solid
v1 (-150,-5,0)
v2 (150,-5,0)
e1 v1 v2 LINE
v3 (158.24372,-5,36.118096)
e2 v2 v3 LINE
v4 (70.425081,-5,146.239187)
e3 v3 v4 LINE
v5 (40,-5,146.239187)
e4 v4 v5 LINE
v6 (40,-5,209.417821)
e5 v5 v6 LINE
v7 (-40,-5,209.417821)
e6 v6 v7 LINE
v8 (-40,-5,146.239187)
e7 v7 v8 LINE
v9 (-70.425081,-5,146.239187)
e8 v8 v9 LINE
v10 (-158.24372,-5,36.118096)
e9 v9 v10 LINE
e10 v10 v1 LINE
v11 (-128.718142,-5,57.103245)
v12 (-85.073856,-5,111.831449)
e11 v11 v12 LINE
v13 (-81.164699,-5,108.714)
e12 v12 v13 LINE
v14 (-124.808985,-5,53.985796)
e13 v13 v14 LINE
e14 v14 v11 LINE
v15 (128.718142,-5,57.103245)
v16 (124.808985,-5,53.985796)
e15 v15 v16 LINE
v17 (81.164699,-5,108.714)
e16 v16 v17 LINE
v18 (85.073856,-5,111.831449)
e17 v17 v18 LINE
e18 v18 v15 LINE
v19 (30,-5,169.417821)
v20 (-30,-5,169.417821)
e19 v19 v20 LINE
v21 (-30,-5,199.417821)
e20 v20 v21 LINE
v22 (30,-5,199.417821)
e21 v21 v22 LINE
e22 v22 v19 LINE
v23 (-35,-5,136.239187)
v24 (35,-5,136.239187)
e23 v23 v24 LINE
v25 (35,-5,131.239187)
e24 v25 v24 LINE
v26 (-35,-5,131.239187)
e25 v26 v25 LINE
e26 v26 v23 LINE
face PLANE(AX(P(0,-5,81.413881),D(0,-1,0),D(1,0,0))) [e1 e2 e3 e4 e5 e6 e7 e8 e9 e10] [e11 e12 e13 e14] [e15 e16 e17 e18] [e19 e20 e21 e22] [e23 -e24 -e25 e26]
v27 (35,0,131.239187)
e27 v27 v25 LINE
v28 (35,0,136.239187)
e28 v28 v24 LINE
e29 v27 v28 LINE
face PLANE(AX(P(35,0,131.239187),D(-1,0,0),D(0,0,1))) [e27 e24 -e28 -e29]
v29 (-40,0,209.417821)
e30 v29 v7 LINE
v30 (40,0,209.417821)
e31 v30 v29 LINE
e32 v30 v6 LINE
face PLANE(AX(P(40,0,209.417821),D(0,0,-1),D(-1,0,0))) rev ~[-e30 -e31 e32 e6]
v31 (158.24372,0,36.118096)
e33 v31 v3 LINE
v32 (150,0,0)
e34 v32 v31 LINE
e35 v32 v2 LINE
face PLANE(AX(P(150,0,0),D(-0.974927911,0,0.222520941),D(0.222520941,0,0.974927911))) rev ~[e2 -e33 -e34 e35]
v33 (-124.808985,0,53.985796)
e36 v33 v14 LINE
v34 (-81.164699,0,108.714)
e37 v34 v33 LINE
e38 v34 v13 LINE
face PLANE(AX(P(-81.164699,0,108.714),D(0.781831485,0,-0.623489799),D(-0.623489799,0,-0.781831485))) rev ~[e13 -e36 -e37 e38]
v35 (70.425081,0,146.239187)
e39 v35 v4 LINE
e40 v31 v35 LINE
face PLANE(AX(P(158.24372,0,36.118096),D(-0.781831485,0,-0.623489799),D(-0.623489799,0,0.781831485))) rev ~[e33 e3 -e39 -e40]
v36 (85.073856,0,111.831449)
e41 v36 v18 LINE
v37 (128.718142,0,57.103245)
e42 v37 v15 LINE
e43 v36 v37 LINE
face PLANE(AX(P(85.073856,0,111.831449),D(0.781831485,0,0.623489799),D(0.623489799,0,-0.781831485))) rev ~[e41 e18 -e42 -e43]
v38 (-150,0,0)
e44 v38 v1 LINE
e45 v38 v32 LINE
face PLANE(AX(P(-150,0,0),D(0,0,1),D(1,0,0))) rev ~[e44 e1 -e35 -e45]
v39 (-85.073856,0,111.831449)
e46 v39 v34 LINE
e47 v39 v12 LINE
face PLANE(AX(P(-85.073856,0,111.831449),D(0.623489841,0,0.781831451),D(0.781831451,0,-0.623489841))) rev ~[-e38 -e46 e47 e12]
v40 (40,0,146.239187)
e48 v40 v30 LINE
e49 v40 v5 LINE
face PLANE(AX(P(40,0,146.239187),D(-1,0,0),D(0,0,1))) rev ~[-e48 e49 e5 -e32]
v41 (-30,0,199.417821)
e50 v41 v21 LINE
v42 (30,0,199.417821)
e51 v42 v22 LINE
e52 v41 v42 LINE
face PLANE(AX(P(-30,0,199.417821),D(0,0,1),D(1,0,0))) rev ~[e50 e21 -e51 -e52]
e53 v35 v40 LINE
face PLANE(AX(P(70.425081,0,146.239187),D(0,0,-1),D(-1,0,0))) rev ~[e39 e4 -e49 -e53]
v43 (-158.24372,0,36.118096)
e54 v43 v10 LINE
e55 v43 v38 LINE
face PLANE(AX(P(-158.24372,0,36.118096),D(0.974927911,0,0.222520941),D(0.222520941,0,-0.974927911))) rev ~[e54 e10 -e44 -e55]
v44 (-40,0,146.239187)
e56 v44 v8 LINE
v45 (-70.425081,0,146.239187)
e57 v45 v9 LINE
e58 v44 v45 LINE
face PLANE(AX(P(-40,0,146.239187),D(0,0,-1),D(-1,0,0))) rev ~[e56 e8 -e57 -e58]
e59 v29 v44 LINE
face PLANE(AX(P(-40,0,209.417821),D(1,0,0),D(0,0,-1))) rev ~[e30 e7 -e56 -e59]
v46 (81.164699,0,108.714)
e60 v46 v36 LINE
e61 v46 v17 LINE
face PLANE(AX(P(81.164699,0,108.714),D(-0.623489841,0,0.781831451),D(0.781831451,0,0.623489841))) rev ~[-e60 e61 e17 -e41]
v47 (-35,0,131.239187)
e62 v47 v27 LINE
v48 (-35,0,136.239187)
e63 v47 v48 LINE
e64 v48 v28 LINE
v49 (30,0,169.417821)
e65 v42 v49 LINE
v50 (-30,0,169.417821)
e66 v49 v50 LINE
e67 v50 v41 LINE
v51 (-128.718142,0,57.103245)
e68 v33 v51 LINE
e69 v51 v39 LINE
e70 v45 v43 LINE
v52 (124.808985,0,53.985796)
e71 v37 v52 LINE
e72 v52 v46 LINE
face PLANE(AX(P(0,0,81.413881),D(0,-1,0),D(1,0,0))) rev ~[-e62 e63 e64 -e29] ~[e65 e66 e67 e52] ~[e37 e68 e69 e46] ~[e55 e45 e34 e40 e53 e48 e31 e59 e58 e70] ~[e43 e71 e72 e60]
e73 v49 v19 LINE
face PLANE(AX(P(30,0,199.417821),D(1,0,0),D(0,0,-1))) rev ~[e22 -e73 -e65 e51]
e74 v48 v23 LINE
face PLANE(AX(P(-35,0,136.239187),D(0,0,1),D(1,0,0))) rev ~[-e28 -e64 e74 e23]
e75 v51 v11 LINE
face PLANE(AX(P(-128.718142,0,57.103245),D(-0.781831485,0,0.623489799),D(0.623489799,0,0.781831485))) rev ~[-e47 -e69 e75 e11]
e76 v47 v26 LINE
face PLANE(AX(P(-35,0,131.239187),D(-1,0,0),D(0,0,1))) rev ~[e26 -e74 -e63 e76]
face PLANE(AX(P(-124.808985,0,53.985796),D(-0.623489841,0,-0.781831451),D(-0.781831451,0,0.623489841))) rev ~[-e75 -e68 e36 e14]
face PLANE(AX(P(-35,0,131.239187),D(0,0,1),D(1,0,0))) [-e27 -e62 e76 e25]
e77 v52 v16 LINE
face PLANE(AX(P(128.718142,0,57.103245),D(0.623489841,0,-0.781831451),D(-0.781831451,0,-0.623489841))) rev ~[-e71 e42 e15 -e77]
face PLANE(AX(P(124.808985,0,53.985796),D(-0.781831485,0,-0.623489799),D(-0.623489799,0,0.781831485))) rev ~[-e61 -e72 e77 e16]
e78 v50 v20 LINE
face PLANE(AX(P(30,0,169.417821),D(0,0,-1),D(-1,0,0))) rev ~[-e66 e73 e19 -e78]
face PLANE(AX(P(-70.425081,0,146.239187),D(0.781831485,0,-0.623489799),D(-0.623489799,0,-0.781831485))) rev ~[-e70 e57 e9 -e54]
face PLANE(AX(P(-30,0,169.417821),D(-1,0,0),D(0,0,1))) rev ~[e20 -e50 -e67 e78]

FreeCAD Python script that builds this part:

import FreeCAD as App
import Part
import Sketcher
from FreeCAD import Vector
Q = App.Units.Quantity


def add_polygon(sketch, points):
    """Adds a closed chain of lines whose ends are joined by coincident constraints."""
    first, n = sketch.GeometryCount, len(points)
    for a, b in zip(points, points[1:] + points[:1]):
        sketch.addGeometry(Part.LineSegment(App.Vector(*a, 0), App.Vector(*b, 0)), False)
    for i in range(n):
        sketch.addConstraint(Sketcher.Constraint("Coincident", first + i, 2, first + (i + 1) % n, 1))

doc = App.newDocument("Part")
body = doc.addObject("PartDesign::Body", "Body")

# Sketch on XZ plane
sketch1 = body.newObject("Sketcher::SketchObject", "Sketch")
sketch1.AttachmentSupport = (doc.getObject("XZ_Plane"), [""])
sketch1.MapMode = "FlatFace"
add_polygon(sketch1, [(-40, 146.2), (-70.4, 146.2), (-158.2, 36.1), (-150, 0), (150, 0), (158.2, 36.1), (70.4, 146.2), (40, 146.2), (40, 209.4), (-40, 209.4)])  # lines 0-9
add_polygon(sketch1, [(-85.1, 111.8), (-81.2, 108.7), (-124.8, 54), (-128.7, 57.1)])  # lines 10-13
add_polygon(sketch1, [(85.1, 111.8), (128.7, 57.1), (124.8, 54), (81.2, 108.7)])  # lines 14-17
add_polygon(sketch1, [(35, 131.2), (-35, 131.2), (-35, 136.2), (35, 136.2)])  # lines 18-21
add_polygon(sketch1, [(-30, 169.4), (-30, 199.4), (30, 199.4), (30, 169.4)])  # lines 22-25
sketch1.addConstraint(Sketcher.Constraint("Horizontal", 0))
sketch1.addConstraint(Sketcher.Constraint("Horizontal", 3))
sketch1.addConstraint(Sketcher.Constraint("Horizontal", 6))
sketch1.addConstraint(Sketcher.Constraint("Vertical", 7))
sketch1.addConstraint(Sketcher.Constraint("Horizontal", 8))
sketch1.addConstraint(Sketcher.Constraint("Vertical", 9))
sketch1.addConstraint(Sketcher.Constraint("Horizontal", 18))
sketch1.addConstraint(Sketcher.Constraint("Vertical", 19))
sketch1.addConstraint(Sketcher.Constraint("Horizontal", 20))
sketch1.addConstraint(Sketcher.Constraint("Vertical", 21))
sketch1.addConstraint(Sketcher.Constraint("Vertical", 22))
sketch1.addConstraint(Sketcher.Constraint("Horizontal", 23))
sketch1.addConstraint(Sketcher.Constraint("Vertical", 24))
sketch1.addConstraint(Sketcher.Constraint("Horizontal", 25))
sketch1.addConstraint(Sketcher.Constraint("Symmetric", 2, 2, 3, 2, -1, 1))
sketch1.addConstraint(Sketcher.Constraint("Symmetric", 1, 2, 4, 2, -2))
sketch1.addConstraint(Sketcher.Constraint("Symmetric", 0, 2, 5, 2, -2))
sketch1.addConstraint(Sketcher.Constraint("Symmetric", 12, 2, 14, 2, -2))
sketch1.addConstraint(Sketcher.Constraint("Symmetric", 11, 2, 15, 2, -2))
sketch1.addConstraint(Sketcher.Constraint("Symmetric", 10, 2, 16, 2, -2))
sketch1.addConstraint(Sketcher.Constraint("Symmetric", 13, 2, 17, 2, -2))
sketch1.addConstraint(Sketcher.Constraint("Perpendicular", 1, 10))
sketch1.addConstraint(Sketcher.Constraint("Perpendicular", 10, 11))
sketch1.addConstraint(Sketcher.Constraint("Perpendicular", 11, 12))
sketch1.addConstraint(Sketcher.Constraint("Perpendicular", 12, 13))
sketch1.addConstraint(Sketcher.Constraint("Equal", 0, 6))
sketch1.addConstraint(Sketcher.Constraint("DistanceX", 3, 1, 3, 2, Q("300 mm")))
sketch1.addConstraint(Sketcher.Constraint("DistanceX", 8, 2, 8, 1, Q("80 mm")))
sketch1.addConstraint(Sketcher.Constraint("DistanceX", 18, 2, 18, 1, Q("70 mm")))
sketch1.addConstraint(Sketcher.Constraint("DistanceX", 23, 1, 23, 2, Q("60 mm")))
sketch1.addConstraint(Sketcher.Constraint("DistanceY", 19, 1, 19, 2, Q("5 mm")))
sketch1.addConstraint(Sketcher.Constraint("DistanceY", 22, 1, 22, 2, Q("30 mm")))
sketch1.addConstraint(Sketcher.Constraint("Distance", 10, Q("5 mm")))
sketch1.addConstraint(Sketcher.Constraint("Distance", 11, Q("70 mm")))
sketch1.addConstraint(Sketcher.Constraint("DistanceX", 18, 2, -1, 1, Q("35 mm")))
sketch1.addConstraint(Sketcher.Constraint("DistanceX", 22, 2, -1, 1, Q("30 mm")))
sketch1.addConstraint(Sketcher.Constraint("DistanceY", 18, 2, 9, 2, Q("15 mm")))
sketch1.addConstraint(Sketcher.Constraint("DistanceY", 22, 2, 8, 2, Q("10 mm")))
sketch1.addConstraint(Sketcher.Constraint("DistanceY", -1, 1, 10, 2, Q("108.714 mm")))
sketch1.addConstraint(Sketcher.Constraint("DistanceX", 0, 2, 0, 1, Q("30.425081 mm")))
sketch1.addConstraint(Sketcher.Constraint("DistanceX", 10, 2, -1, 1, Q("81.164699 mm")))
sketch1.addConstraint(Sketcher.Constraint("DistanceX", 0, 2, 4, 2, Q("228.668801 mm")))
sketch1.addConstraint(Sketcher.Constraint("DistanceY", 1, 2, 11, 2, Q("17.8677 mm")))
sketch1.addConstraint(Sketcher.Constraint("Distance", 1, Q("140.850162 mm")))
sketch1.addConstraint(Sketcher.Constraint("DistanceY", 7, 1, 7, 2, Q("63.178634 mm")))
pad1 = body.newObject("PartDesign::Pad", "Pad")
pad1.Profile = sketch1
pad1.Length = 5

doc.recompute()
